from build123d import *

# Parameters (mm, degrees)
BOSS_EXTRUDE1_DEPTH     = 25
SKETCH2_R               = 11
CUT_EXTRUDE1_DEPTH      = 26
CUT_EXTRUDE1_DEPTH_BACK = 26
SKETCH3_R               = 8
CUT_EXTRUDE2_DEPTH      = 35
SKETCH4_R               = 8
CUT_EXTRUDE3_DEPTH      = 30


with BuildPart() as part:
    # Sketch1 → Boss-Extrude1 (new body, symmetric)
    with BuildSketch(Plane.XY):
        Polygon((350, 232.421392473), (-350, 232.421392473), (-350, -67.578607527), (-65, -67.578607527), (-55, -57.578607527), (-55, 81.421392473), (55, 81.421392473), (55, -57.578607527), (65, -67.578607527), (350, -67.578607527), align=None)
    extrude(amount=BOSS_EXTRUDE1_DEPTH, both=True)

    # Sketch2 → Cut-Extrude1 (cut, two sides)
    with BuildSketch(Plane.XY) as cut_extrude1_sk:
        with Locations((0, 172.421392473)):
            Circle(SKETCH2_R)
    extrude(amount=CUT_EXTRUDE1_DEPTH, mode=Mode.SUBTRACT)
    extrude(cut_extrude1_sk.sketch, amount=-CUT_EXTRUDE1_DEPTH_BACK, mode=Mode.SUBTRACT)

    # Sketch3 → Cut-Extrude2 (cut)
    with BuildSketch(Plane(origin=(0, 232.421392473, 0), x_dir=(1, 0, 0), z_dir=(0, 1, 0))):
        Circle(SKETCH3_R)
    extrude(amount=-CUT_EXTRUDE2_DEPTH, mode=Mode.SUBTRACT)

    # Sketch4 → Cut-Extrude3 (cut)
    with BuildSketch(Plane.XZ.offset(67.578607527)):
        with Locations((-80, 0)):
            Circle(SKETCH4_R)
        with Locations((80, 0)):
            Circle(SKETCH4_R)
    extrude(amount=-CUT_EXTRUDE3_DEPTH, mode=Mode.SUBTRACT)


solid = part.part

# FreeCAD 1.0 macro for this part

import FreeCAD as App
import Part
import Sketcher

V = App.Vector
Q = App.Units.Quantity

doc = App.newDocument("Part")
body = doc.addObject("PartDesign::Body", "Body")

# Sketch on XY plane
sketch1 = body.newObject("Sketcher::SketchObject", "Sketch")
sketch1.AttachmentSupport = (doc.getObject("XY_Plane"), [""])
sketch1.MapMode = "FlatFace"
sketch1.addGeometry([
    Part.LineSegment(V(350, 232.421392, 0), V(-350, 232.421392, 0)),  # 0
    Part.LineSegment(V(-350, 232.421392, 0), V(-350, -67.578608, 0)),  # 1
    Part.LineSegment(V(-350, -67.578608, 0), V(-65, -67.578608, 0)),  # 2
    Part.LineSegment(V(-65, -67.578608, 0), V(-55, -57.578608, 0)),  # 3
    Part.LineSegment(V(-55, -57.578608, 0), V(-55, 81.421392, 0)),  # 4
    Part.LineSegment(V(-55, 81.421392, 0), V(55, 81.421392, 0)),  # 5
    Part.LineSegment(V(55, 81.421392, 0), V(55, -57.578608, 0)),  # 6
    Part.LineSegment(V(55, -57.578608, 0), V(65, -67.578608, 0)),  # 7
    Part.LineSegment(V(65, -67.578608, 0), V(350, -67.578608, 0)),  # 8
    Part.LineSegment(V(350, -67.578608, 0), V(350, 232.421392, 0)),  # 9
], False)
sketch1.addConstraint([
    Sketcher.Constraint("Coincident", 0, 2, 1, 1),
    Sketcher.Constraint("Coincident", 1, 2, 2, 1),
    Sketcher.Constraint("Coincident", 2, 2, 3, 1),
    Sketcher.Constraint("Coincident", 3, 2, 4, 1),
    Sketcher.Constraint("Coincident", 4, 2, 5, 1),
    Sketcher.Constraint("Coincident", 5, 2, 6, 1),
    Sketcher.Constraint("Coincident", 6, 2, 7, 1),
    Sketcher.Constraint("Coincident", 7, 2, 8, 1),
    Sketcher.Constraint("Coincident", 8, 2, 9, 1),
    Sketcher.Constraint("Coincident", 9, 2, 0, 1),
    Sketcher.Constraint("Horizontal", 0),
    Sketcher.Constraint("Vertical", 1),
    Sketcher.Constraint("Horizontal", 2),
    Sketcher.Constraint("Vertical", 4),
    Sketcher.Constraint("Horizontal", 5),
    Sketcher.Constraint("Vertical", 6),
    Sketcher.Constraint("Horizontal", 8),
    Sketcher.Constraint("Vertical", 9),
    Sketcher.Constraint("Symmetric", 3, 2, 6, 2, -2),
    Sketcher.Constraint("Symmetric", 2, 2, 7, 2, -2),
    Sketcher.Constraint("Perpendicular", 3, 7),
    Sketcher.Constraint("Equal", 2, 8),
    Sketcher.Constraint("DistanceX", 0, 2, 0, 1, Q("700 mm")),
    Sketcher.Constraint("DistanceX", 2, 1, 2, 2, Q("285 mm")),
    Sketcher.Constraint("DistanceX", 5, 1, 5, 2, Q("110 mm")),
    Sketcher.Constraint("DistanceY", 1, 2, 1, 1, Q("300 mm")),
    Sketcher.Constraint("DistanceY", 4, 1, 4, 2, Q("139 mm")),
    Sketcher.Constraint("DistanceY", -1, 1, 0, 2, Q("232.421392 mm")),
])
pad1 = body.newObject("PartDesign::Pad", "Pad")
pad1.Profile = sketch1
pad1.Length = 50
pad1.Midplane = True

# Sketch on XY plane
sketch2 = body.newObject("Sketcher::SketchObject", "Sketch001")
sketch2.AttachmentSupport = (doc.getObject("XY_Plane"), [""])
sketch2.MapMode = "FlatFace"
sketch2.addGeometry(Part.Circle(V(0, 172.421392, 0), V(0, 0, 1), 11), False)
sketch2.addConstraint([
    Sketcher.Constraint("PointOnObject", 0, 3, -2),
    Sketcher.Constraint("Diameter", 0, Q("22 mm")),
    Sketcher.Constraint("DistanceY", -1, 1, 0, 3, Q("172.421392 mm")),
])
pocket1 = body.newObject("PartDesign::Pocket", "Pocket")
pocket1.Profile = sketch2
pocket1.Type = "ThroughAll"
pocket1.Midplane = True

# Sketch on XZ plane
sketch3 = body.newObject("Sketcher::SketchObject", "Sketch002")
sketch3.AttachmentSupport = (doc.getObject("XZ_Plane"), [""])
sketch3.MapMode = "FlatFace"
sketch3.AttachmentOffset = App.Placement(V(0, 0, -232.421392), App.Rotation())
sketch3.addGeometry(Part.Circle(V(0, 0, 0), V(0, 0, 1), 8), False)
sketch3.addConstraint([
    Sketcher.Constraint("Coincident", 0, 3, -1, 1),
    Sketcher.Constraint("Diameter", 0, Q("16 mm")),
])
pocket2 = body.newObject("PartDesign::Pocket", "Pocket001")
pocket2.Profile = sketch3
pocket2.Length = 35
pocket2.Reversed = True

# Sketch on XZ plane
sketch4 = body.newObject("Sketcher::SketchObject", "Sketch003")
sketch4.AttachmentSupport = (doc.getObject("XZ_Plane"), [""])
sketch4.MapMode = "FlatFace"
sketch4.AttachmentOffset = App.Placement(V(0, 0, 67.578608), App.Rotation())
sketch4.addGeometry([
    Part.Circle(V(-80, 0, 0), V(0, 0, 1), 8),
    Part.Circle(V(80, 0, 0), V(0, 0, 1), 8),
], False)
sketch4.addConstraint([
    Sketcher.Constraint("Equal", 0, 1),
    Sketcher.Constraint("Symmetric", 0, 3, 1, 3, -1, 1),
    Sketcher.Constraint("PointOnObject", 0, 3, -1),
    Sketcher.Constraint("Diameter", 0, Q("16 mm")),
    Sketcher.Constraint("DistanceX", 0, 3, -1, 1, Q("80 mm")),
])
pocket3 = body.newObject("PartDesign::Pocket", "Pocket002")
pocket3.Profile = sketch4
pocket3.Length = 30

doc.recompute()
